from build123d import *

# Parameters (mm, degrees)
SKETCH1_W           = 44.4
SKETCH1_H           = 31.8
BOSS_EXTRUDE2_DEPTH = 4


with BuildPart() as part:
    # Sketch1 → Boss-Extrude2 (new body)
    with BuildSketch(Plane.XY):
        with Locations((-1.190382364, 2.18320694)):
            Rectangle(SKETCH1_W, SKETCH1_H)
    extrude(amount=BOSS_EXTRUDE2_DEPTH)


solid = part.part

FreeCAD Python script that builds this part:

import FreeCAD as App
import Part
import Sketcher
Q = App.Units.Quantity


def add_polygon(sketch, points):
    """Adds a closed chain of lines whose ends are joined by coincident constraints."""
    first, n = sketch.GeometryCount, len(points)
    for a, b in zip(points, points[1:] + points[:1]):
        sketch.addGeometry(Part.LineSegment(App.Vector(*a, 0), App.Vector(*b, 0)), False)
    for i in range(n):
        sketch.addConstraint(Sketcher.Constraint("Coincident", first + i, 2, first + (i + 1) % n, 1))

doc = App.newDocument("Part")
body = doc.addObject("PartDesign::Body", "Body")

sketch1 = doc.addObject("Sketcher::SketchObject", "Sketch")
body.addObject(sketch1)
sketch1.AttachmentSupport = (doc.XY_Plane, [""])
sketch1.MapMode = "FlatFace"
add_polygon(sketch1, [(-23.390382, 18.083207), (-23.390382, -13.716793), (21.009618, -13.716793), (21.009618, 18.083207)])
sketch1.addConstraint(Sketcher.Constraint("Vertical", 0))
sketch1.addConstraint(Sketcher.Constraint("Horizontal", 1))
sketch1.addConstraint(Sketcher.Constraint("Vertical", 2))
sketch1.addConstraint(Sketcher.Constraint("Horizontal", 3))
sketch1.addConstraint(Sketcher.Constraint("DistanceX", 1, 1, 1, 2, Q("44.4 mm")))
sketch1.addConstraint(Sketcher.Constraint("DistanceY", 0, 2, 0, 1, Q("31.8 mm")))
sketch1.addConstraint(Sketcher.Constraint("DistanceX", 0, 2, -1, 1, Q("23.390382 mm")))
sketch1.addConstraint(Sketcher.Constraint("DistanceY", 0, 2, -1, 1, Q("13.716793 mm")))
pad1 = doc.addObject("PartDesign::Pad", "Pad")
body.addObject(pad1)
pad1.Profile = sketch1
pad1.Length = 4

doc.recompute()
